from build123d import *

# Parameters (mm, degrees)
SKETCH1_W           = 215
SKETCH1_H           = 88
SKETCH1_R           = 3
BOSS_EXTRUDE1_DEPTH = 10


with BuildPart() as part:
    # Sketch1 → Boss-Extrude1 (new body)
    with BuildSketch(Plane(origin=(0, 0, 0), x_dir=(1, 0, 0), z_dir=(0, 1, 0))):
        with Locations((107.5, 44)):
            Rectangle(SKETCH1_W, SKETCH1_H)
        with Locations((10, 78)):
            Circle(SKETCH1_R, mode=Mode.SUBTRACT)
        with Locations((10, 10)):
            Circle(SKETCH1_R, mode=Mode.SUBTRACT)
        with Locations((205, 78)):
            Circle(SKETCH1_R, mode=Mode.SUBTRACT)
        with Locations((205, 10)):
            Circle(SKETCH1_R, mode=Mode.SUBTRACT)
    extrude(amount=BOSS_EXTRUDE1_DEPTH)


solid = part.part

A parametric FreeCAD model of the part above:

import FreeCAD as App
import Part
import Sketcher

V = App.Vector


def add_polygon(sketch, points):
    """Adds a closed chain of lines whose ends are joined by coincident constraints."""
    first, n = sketch.GeometryCount, len(points)
    for a, b in zip(points, points[1:] + points[:1]):
        sketch.addGeometry(Part.LineSegment(App.Vector(*a, 0), App.Vector(*b, 0)), False)
    for i in range(n):
        sketch.addConstraint(Sketcher.Constraint("Coincident", first + i, 2, first + (i + 1) % n, 1))

doc = App.newDocument("Part")
body = doc.addObject("PartDesign::Body", "Body")

# Sketch on XZ plane
sketch1 = body.newObject("Sketcher::SketchObject", "Sketch")
sketch1.AttachmentSupport = (doc.getObject("XZ_Plane"), [""])
sketch1.MapMode = "FlatFace"
add_polygon(sketch1, [(0, -88), (0, 0), (215, 0), (215, -88)])  # lines 0-3
sketch1.addGeometry(Part.Circle(V(10, -10, 0), V(0, 0, 1), 3), False)  # 4
sketch1.addGeometry(Part.Circle(V(205, -10, 0), V(0, 0, 1), 3), False)  # 5
sketch1.addGeometry(Part.Circle(V(10, -78, 0), V(0, 0, 1), 3), False)  # 6
sketch1.addGeometry(Part.Circle(V(205, -78, 0), V(0, 0, 1), 3), False)  # 7
sketch1.addConstraint(Sketcher.Constraint("Vertical", 0))
sketch1.addConstraint(Sketcher.Constraint("Horizontal", 1))
sketch1.addConstraint(Sketcher.Constraint("Vertical", 2))
sketch1.addConstraint(Sketcher.Constraint("Horizontal", 3))
sketch1.addConstraint(Sketcher.Constraint("Coincident", 0, 2, -1, 1))
sketch1.addConstraint(Sketcher.Constraint("Equal", 4, 5))
sketch1.addConstraint(Sketcher.Constraint("Equal", 5, 6))
sketch1.addConstraint(Sketcher.Constraint("Equal", 6, 7))
sketch1.addConstraint(Sketcher.Constraint("Horizontal", 4, 3, 5, 3))
sketch1.addConstraint(Sketcher.Constraint("Horizontal", 6, 3, 7, 3))
sketch1.addConstraint(Sketcher.Constraint("Vertical", 4, 3, 6, 3))
sketch1.addConstraint(Sketcher.Constraint("Vertical", 5, 3, 7, 3))
sketch1.addConstraint(Sketcher.Constraint("Diameter", 4, 6.0))
sketch1.addConstraint(Sketcher.Constraint("DistanceX", 1, 1, 1, 2, 215.0))
sketch1.addConstraint(Sketcher.Constraint("DistanceY", 0, 1, 0, 2, 88.0))
sketch1.addConstraint(Sketcher.Constraint("DistanceX", -1, 1, 4, 3, 10.0))
sketch1.addConstraint(Sketcher.Constraint("DistanceY", 4, 3, -1, 1, 10.0))
sketch1.addConstraint(Sketcher.Constraint("DistanceX", -1, 1, 5, 3, 205.0))
sketch1.addConstraint(Sketcher.Constraint("DistanceY", 6, 3, -1, 1, 78.0))
pad1 = body.newObject("PartDesign::Pad", "Pad")
pad1.Profile = sketch1
pad1.Length = 10
pad1.Reversed = True

doc.recompute()
